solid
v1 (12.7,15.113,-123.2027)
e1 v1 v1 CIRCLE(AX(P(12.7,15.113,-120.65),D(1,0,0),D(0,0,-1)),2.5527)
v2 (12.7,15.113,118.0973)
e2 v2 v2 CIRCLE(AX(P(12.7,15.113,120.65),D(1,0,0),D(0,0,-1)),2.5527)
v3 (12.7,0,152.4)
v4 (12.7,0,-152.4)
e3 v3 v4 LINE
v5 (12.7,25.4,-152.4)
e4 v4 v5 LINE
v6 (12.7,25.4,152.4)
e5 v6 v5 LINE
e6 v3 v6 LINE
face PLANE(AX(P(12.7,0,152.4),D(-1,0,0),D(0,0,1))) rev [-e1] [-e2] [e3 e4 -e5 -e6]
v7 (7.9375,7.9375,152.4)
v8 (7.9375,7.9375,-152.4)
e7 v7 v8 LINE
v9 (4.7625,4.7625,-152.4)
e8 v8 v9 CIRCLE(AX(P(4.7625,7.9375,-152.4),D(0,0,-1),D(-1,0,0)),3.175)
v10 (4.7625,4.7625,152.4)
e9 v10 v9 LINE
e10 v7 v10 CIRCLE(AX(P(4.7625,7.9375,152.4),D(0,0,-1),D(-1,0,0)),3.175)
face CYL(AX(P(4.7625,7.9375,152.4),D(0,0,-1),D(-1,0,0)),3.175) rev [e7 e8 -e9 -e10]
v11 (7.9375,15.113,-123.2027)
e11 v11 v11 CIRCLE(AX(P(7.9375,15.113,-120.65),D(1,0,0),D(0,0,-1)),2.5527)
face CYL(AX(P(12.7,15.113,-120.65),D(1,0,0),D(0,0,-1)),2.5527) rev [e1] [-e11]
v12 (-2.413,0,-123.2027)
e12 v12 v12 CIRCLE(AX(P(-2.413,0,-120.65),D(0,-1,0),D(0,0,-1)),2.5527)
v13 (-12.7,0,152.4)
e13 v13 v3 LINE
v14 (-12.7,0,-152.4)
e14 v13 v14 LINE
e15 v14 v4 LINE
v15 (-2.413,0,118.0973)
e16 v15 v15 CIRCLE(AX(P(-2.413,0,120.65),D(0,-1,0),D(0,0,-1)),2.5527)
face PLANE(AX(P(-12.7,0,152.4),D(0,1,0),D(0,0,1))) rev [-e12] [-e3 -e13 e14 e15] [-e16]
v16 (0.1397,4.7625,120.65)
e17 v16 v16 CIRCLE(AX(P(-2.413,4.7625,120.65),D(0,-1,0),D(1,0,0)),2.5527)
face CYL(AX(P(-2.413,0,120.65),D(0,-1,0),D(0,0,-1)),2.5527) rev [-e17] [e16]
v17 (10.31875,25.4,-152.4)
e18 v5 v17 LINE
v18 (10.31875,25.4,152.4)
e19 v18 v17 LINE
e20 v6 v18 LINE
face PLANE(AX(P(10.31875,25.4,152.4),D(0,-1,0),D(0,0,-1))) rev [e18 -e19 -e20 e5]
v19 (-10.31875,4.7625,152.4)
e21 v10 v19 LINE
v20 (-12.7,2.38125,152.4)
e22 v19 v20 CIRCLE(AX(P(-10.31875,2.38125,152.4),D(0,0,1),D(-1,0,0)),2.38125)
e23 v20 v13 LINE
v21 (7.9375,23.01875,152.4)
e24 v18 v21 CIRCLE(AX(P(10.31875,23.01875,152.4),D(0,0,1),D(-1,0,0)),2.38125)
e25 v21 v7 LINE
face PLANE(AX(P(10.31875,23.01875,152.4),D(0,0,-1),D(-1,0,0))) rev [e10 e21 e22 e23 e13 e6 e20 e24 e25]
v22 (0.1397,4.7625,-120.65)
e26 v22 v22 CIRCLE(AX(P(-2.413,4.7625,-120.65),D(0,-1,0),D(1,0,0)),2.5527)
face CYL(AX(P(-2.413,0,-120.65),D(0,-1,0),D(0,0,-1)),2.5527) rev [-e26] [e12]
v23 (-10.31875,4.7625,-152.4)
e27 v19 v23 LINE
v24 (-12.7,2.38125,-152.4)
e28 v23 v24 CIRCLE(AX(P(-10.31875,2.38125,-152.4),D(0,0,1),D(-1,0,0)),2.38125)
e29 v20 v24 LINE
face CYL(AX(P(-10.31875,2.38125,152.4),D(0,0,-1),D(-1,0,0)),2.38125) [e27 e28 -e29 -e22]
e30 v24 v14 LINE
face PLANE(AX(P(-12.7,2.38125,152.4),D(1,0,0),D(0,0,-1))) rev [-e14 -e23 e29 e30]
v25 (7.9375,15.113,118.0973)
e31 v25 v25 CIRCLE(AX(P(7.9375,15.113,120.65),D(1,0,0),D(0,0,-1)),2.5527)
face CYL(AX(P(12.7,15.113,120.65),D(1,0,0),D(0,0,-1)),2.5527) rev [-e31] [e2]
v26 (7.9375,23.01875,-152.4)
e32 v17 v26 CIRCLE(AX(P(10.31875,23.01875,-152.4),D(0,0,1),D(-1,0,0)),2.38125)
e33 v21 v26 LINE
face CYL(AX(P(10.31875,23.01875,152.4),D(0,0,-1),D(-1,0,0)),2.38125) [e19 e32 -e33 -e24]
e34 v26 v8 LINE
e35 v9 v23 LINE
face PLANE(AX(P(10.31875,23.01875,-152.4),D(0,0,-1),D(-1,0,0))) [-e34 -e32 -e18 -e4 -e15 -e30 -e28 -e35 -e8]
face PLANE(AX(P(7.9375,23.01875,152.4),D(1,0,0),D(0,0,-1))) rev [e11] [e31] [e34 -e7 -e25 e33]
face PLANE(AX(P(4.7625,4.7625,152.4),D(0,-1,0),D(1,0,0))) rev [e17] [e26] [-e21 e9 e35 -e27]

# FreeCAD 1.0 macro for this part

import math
import FreeCAD as App
import Part
import Sketcher
from FreeCAD import Vector
Q = App.Units.Quantity

doc = App.newDocument("Part")
params = doc.addObject("Spreadsheet::Sheet", "Params")
for row, (alias, value) in enumerate([
    ("sketch1_width", "1 in"),
    ("sketch1_radius", "0.09375 in"),
    ("sketch1_radius2", "0.125 in"),
    ("sketch1_width2", "0.09375 in"),
    ("pad1_length", "12 in"),
    ("sketch2_diameter", "0.201 in"),
    ("hole_diameter", "0.201 in"),
    ("sketch3_diameter", "0.201 in"),
    ("hole2_diameter", "0.201 in"),
], start=1):
    params.set(f"A{row}", alias)
    params.set(f"B{row}", "=" + value)
    params.setAlias(f"B{row}", alias)

body = doc.addObject("PartDesign::Body", "Body")

sketch1 = doc.addObject("Sketcher::SketchObject", "Sketch")
body.addObject(sketch1)
sketch1.AttachmentSupport = (doc.XY_Plane, [""])
sketch1.MapMode = "FlatFace"
sketch1.addGeometry([
    Part.LineSegment(Vector(-12.7, 0, 0), Vector(12.7, 0, 0)),
    Part.LineSegment(Vector(12.7, 0, 0), Vector(12.7, 25.4, 0)),
    Part.LineSegment(Vector(12.7, 25.4, 0), Vector(10.3, 25.4, 0)),
    Part.ArcOfCircle(Part.Circle(Vector(10.3, 23, 0), Vector(0, 0, 1), 2.4), math.radians(90), math.radians(180)),
    Part.LineSegment(Vector(7.9, 23, 0), Vector(7.9, 7.9, 0)),
    Part.ArcOfCircle(Part.Circle(Vector(4.8, 7.9, 0), Vector(0, 0, 1), 3.2), math.radians(-90), math.radians(0)),
    Part.LineSegment(Vector(4.8, 4.8, 0), Vector(-10.3, 4.8, 0)),
    Part.ArcOfCircle(Part.Circle(Vector(-10.3, 2.4, 0), Vector(0, 0, 1), 2.4), math.radians(90), math.radians(180)),
    Part.LineSegment(Vector(-12.7, 2.4, 0), Vector(-12.7, 0, 0)),
], False)
sketch1.addConstraint([
    Sketcher.Constraint("Coincident", 0, 2, 1, 1),
    Sketcher.Constraint("Coincident", 1, 2, 2, 1),
    Sketcher.Constraint("Tangent", 2, 2, 3, 1),
    Sketcher.Constraint("Tangent", 3, 2, 4, 1),
    Sketcher.Constraint("Tangent", 4, 2, 5, 2),
    Sketcher.Constraint("Tangent", 5, 1, 6, 1),
    Sketcher.Constraint("Tangent", 6, 2, 7, 1),
    Sketcher.Constraint("Tangent", 7, 2, 8, 1),
    Sketcher.Constraint("Coincident", 8, 2, 0, 1),
    Sketcher.Constraint("Horizontal", 0),
    Sketcher.Constraint("Vertical", 1),
    Sketcher.Constraint("Horizontal", 2),
    Sketcher.Constraint("Vertical", 4),
    Sketcher.Constraint("Horizontal", 6),
    Sketcher.Constraint("Vertical", 8),
    Sketcher.Constraint("Equal", 3, 7),
    Sketcher.Constraint("Symmetric", 0, 2, 8, 2, -1, 1),
    Sketcher.Constraint("Equal", 0, 1),
    Sketcher.Constraint("Equal", 6, 4),
    Sketcher.Constraint("DistanceX", 0, 1, 0, 2, Q("1 in")),
    Sketcher.Constraint("Radius", 3, Q("0.09375 in")),
    Sketcher.Constraint("Radius", 5, Q("0.125 in")),
    Sketcher.Constraint("DistanceX", 2, 2, 2, 1, Q("0.09375 in")),
])
sketch1.setExpression("Constraints[19]", "Params.sketch1_width")
sketch1.setExpression("Constraints[20]", "Params.sketch1_radius")
sketch1.setExpression("Constraints[21]", "Params.sketch1_radius2")
sketch1.setExpression("Constraints[22]", "Params.sketch1_width2")
pad1 = doc.addObject("PartDesign::Pad", "Pad")
body.addObject(pad1)
pad1.Profile = sketch1
pad1.setExpression("Length", "Params.pad1_length")
pad1.Midplane = True

sketch2 = doc.addObject("Sketcher::SketchObject", "Sketch001")
body.addObject(sketch2)
sketch2.AttachmentSupport = (doc.YZ_Plane, [""])
sketch2.MapMode = "FlatFace"
sketch2.AttachmentOffset = App.Placement(Vector(0, 0, 0.5 * 25.4), App.Rotation())
sketch2.addGeometry([
    Part.Circle(Vector(15.1, 120.7, 0), Vector(0, 0, 1), 2.6),
    Part.Circle(Vector(15.1, -120.7, 0), Vector(0, 0, 1), 2.6),
], False)
sketch2.addConstraint([
    Sketcher.Constraint("Equal", 0, 1),
    Sketcher.Constraint("Symmetric", 0, 3, 1, 3, -1),
    Sketcher.Constraint("Diameter", 0, Q("0.201 in")),
    Sketcher.Constraint("DistanceY", 1, 3, 0, 3, Q("9.5 in")),
    Sketcher.Constraint("DistanceX", -1, 1, 0, 3, Q("0.595 in")),
])
sketch2.setExpression("Constraints[2]", "Params.sketch2_diameter")
doc.recompute()
hole = doc.addObject("PartDesign::Hole", "Hole")
body.addObject(hole)
hole.Profile = sketch2
hole.ThreadType = "None"
hole.setExpression("Diameter", "Params.hole_diameter")
hole.DepthType = "ThroughAll"

sketch3 = doc.addObject("Sketcher::SketchObject", "Sketch002")
body.addObject(sketch3)
sketch3.AttachmentSupport = (doc.XZ_Plane, [""])
sketch3.MapMode = "FlatFace"
sketch3.addGeometry([
    Part.Circle(Vector(-2.4, 120.7, 0), Vector(0, 0, 1), 2.6),
    Part.Circle(Vector(-2.4, -120.7, 0), Vector(0, 0, 1), 2.6),
], False)
sketch3.addConstraint([
    Sketcher.Constraint("Equal", 0, 1),
    Sketcher.Constraint("Symmetric", 0, 3, 1, 3, -1),
    Sketcher.Constraint("Diameter", 0, Q("0.201 in")),
    Sketcher.Constraint("DistanceY", 1, 3, 0, 3, Q("9.5 in")),
    Sketcher.Constraint("DistanceX", 0, 3, -1, 1, Q("0.095 in")),
])
sketch3.setExpression("Constraints[2]", "Params.sketch3_diameter")
doc.recompute()
hole2 = doc.addObject("PartDesign::Hole", "Hole001")
body.addObject(hole2)
hole2.Profile = sketch3
hole2.ThreadType = "None"
hole2.setExpression("Diameter", "Params.hole2_diameter")
hole2.DepthType = "ThroughAll"

doc.recompute()
